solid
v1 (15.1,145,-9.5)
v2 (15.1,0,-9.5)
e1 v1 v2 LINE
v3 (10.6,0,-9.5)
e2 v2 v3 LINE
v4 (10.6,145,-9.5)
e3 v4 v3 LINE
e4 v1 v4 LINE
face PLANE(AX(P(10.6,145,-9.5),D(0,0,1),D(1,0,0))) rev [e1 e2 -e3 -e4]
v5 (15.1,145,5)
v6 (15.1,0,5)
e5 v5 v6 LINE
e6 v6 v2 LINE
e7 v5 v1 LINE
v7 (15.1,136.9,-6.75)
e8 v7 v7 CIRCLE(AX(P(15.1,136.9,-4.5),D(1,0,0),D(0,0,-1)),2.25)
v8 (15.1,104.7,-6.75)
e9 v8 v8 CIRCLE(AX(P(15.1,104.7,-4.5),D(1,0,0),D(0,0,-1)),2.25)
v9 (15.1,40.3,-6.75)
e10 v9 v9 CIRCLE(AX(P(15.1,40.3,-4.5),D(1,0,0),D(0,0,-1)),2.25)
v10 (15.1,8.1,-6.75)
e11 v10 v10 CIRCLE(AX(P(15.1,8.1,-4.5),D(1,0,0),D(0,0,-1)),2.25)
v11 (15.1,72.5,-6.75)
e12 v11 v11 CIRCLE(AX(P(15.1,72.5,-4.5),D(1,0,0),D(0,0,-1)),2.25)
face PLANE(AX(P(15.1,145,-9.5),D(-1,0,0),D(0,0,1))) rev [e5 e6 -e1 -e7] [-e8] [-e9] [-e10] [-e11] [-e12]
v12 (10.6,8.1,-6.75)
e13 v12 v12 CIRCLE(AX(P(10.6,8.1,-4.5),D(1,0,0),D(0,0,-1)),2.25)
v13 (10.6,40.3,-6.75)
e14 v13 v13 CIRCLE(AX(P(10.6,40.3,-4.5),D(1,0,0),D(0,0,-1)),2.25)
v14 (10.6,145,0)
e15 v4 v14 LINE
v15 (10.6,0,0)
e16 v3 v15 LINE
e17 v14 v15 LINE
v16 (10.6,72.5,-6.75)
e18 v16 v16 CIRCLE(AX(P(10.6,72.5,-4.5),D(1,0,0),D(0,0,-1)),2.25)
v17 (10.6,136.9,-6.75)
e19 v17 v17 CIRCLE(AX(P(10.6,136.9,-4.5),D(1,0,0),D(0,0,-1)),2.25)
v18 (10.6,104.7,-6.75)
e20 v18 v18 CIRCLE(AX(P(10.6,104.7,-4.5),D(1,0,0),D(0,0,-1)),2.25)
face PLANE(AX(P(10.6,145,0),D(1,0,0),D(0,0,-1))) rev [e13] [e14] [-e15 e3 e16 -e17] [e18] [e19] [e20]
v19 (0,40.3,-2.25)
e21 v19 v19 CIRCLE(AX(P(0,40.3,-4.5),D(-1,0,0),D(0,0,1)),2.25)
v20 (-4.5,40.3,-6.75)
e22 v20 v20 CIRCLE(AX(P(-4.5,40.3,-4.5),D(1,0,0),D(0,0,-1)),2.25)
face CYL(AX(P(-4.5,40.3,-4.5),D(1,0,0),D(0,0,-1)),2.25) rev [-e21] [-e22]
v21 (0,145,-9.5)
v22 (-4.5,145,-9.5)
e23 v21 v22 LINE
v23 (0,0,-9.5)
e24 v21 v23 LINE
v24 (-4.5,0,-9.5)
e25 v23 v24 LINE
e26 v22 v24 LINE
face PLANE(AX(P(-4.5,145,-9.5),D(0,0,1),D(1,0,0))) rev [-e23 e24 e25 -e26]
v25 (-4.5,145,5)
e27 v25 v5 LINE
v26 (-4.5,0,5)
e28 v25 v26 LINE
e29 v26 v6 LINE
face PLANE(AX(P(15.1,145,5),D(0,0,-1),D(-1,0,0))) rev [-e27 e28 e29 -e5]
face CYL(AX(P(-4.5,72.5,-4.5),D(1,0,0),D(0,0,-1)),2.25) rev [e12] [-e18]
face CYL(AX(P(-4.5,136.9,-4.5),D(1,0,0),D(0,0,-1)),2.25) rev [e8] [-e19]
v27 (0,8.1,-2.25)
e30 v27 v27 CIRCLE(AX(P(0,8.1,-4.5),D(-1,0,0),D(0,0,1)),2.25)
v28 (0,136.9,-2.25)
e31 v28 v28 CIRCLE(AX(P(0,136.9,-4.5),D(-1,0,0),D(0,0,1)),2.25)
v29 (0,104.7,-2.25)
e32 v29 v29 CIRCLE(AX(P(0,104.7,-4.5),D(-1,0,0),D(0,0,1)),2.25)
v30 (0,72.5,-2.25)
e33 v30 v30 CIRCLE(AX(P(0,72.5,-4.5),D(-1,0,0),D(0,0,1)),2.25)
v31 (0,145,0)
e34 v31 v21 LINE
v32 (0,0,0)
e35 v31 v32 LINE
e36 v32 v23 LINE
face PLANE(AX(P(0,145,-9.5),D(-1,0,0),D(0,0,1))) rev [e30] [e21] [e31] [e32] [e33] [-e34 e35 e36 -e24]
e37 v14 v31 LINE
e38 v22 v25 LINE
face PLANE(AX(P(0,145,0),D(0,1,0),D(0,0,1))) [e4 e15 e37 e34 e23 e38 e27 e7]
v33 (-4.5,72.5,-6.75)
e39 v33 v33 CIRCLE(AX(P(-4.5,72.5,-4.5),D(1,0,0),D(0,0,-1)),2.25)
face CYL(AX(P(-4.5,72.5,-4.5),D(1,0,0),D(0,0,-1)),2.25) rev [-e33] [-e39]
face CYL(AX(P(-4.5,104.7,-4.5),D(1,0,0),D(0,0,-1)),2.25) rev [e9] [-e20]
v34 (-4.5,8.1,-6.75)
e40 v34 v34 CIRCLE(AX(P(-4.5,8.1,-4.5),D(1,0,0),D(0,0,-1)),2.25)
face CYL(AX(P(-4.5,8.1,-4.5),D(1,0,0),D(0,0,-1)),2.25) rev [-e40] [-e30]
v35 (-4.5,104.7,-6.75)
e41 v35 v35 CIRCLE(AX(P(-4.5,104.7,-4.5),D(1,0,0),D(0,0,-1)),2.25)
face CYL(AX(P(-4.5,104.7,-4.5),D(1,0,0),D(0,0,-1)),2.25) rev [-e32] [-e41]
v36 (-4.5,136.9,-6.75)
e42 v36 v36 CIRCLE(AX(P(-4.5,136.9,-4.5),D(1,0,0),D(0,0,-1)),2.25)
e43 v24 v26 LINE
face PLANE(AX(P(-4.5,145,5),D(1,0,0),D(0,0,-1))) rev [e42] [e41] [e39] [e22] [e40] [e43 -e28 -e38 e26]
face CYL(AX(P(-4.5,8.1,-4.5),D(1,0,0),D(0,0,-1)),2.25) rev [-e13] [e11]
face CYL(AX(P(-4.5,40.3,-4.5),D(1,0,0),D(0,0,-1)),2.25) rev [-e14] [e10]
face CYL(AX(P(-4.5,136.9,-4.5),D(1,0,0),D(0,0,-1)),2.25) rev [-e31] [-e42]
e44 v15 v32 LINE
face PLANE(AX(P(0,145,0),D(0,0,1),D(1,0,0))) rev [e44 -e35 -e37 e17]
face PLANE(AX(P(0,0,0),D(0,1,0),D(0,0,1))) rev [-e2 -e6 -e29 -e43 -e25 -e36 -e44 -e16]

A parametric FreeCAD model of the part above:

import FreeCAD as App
import Part
import Sketcher
from FreeCAD import Vector


def add_polygon(sketch, points):
    """Adds a closed chain of lines whose ends are joined by coincident constraints."""
    first, n = sketch.GeometryCount, len(points)
    for a, b in zip(points, points[1:] + points[:1]):
        sketch.addGeometry(Part.LineSegment(App.Vector(*a, 0), App.Vector(*b, 0)), False)
    for i in range(n):
        sketch.addConstraint(Sketcher.Constraint("Coincident", first + i, 2, first + (i + 1) % n, 1))

doc = App.newDocument("Part")
body = doc.addObject("PartDesign::Body", "Body")

sketch1 = body.newObject("Sketcher::SketchObject", "Sketch")
sketch1.AttachmentSupport = (doc.getObject("XZ_Plane"), [""])
sketch1.MapMode = "FlatFace"
add_polygon(sketch1, [(10.6, 0), (0, 0), (0, -9.5), (-4.5, -9.5), (-4.5, 5), (15.1, 5), (15.1, -9.5), (10.6, -9.5)])
sketch1.addConstraint([
    Sketcher.Constraint("Horizontal", 0),
    Sketcher.Constraint("Vertical", 1),
    Sketcher.Constraint("Horizontal", 2),
    Sketcher.Constraint("Vertical", 3),
    Sketcher.Constraint("Horizontal", 4),
    Sketcher.Constraint("Vertical", 5),
    Sketcher.Constraint("Horizontal", 6),
    Sketcher.Constraint("Vertical", 7),
    Sketcher.Constraint("Coincident", 0, 2, -1, 1),
    Sketcher.Constraint("Horizontal", 2, 2, 5, 2),
    Sketcher.Constraint("Equal", 2, 6),
    Sketcher.Constraint("DistanceX", 0, 2, 0, 1, 10.6),
    Sketcher.Constraint("DistanceX", 2, 2, 2, 1, 4.5),
    Sketcher.Constraint("DistanceY", 1, 2, 1, 1, 9.5),
    Sketcher.Constraint("DistanceY", 3, 1, 3, 2, 14.5),
])
pad1 = body.newObject("PartDesign::Pad", "Pad")
pad1.Profile = sketch1
pad1.Length = 145
pad1.Reversed = True

sketch2 = body.newObject("Sketcher::SketchObject", "Sketch001")
sketch2.AttachmentSupport = (doc.getObject("YZ_Plane"), [""])
sketch2.MapMode = "FlatFace"
sketch2.AttachmentOffset = App.Placement(Vector(0, 0, 15.1), App.Rotation())
sketch2.addGeometry([
    Part.Circle(Vector(40.3, -4.5, 0), Vector(0, 0, 1), 2.2),
    Part.Circle(Vector(8.1, -4.5, 0), Vector(0, 0, 1), 2.2),
    Part.Circle(Vector(72.5, -4.5, 0), Vector(0, 0, 1), 2.2),
    Part.Circle(Vector(104.7, -4.5, 0), Vector(0, 0, 1), 2.2),
    Part.Circle(Vector(136.9, -4.5, 0), Vector(0, 0, 1), 2.2),
], False)
sketch2.addConstraint([
    Sketcher.Constraint("Equal", 0, 1),
    Sketcher.Constraint("Equal", 1, 2),
    Sketcher.Constraint("Equal", 2, 3),
    Sketcher.Constraint("Equal", 3, 4),
    Sketcher.Constraint("Horizontal", 0, 3, 1, 3),
    Sketcher.Constraint("Horizontal", 1, 3, 2, 3),
    Sketcher.Constraint("Horizontal", 2, 3, 3, 3),
    Sketcher.Constraint("Horizontal", 3, 3, 4, 3),
    Sketcher.Constraint("Diameter", 0, 4.5),
    Sketcher.Constraint("DistanceX", -1, 1, 0, 3, 40.3),
    Sketcher.Constraint("DistanceY", 0, 3, -1, 1, 4.5),
    Sketcher.Constraint("DistanceX", -1, 1, 1, 3, 8.1),
    Sketcher.Constraint("DistanceX", -1, 1, 2, 3, 72.5),
    Sketcher.Constraint("DistanceX", -1, 1, 3, 3, 104.7),
    Sketcher.Constraint("DistanceX", -1, 1, 4, 3, 136.9),
])
pocket1 = body.newObject("PartDesign::Pocket", "Pocket")
pocket1.Profile = sketch2
pocket1.Type = "ThroughAll"

doc.recompute()
